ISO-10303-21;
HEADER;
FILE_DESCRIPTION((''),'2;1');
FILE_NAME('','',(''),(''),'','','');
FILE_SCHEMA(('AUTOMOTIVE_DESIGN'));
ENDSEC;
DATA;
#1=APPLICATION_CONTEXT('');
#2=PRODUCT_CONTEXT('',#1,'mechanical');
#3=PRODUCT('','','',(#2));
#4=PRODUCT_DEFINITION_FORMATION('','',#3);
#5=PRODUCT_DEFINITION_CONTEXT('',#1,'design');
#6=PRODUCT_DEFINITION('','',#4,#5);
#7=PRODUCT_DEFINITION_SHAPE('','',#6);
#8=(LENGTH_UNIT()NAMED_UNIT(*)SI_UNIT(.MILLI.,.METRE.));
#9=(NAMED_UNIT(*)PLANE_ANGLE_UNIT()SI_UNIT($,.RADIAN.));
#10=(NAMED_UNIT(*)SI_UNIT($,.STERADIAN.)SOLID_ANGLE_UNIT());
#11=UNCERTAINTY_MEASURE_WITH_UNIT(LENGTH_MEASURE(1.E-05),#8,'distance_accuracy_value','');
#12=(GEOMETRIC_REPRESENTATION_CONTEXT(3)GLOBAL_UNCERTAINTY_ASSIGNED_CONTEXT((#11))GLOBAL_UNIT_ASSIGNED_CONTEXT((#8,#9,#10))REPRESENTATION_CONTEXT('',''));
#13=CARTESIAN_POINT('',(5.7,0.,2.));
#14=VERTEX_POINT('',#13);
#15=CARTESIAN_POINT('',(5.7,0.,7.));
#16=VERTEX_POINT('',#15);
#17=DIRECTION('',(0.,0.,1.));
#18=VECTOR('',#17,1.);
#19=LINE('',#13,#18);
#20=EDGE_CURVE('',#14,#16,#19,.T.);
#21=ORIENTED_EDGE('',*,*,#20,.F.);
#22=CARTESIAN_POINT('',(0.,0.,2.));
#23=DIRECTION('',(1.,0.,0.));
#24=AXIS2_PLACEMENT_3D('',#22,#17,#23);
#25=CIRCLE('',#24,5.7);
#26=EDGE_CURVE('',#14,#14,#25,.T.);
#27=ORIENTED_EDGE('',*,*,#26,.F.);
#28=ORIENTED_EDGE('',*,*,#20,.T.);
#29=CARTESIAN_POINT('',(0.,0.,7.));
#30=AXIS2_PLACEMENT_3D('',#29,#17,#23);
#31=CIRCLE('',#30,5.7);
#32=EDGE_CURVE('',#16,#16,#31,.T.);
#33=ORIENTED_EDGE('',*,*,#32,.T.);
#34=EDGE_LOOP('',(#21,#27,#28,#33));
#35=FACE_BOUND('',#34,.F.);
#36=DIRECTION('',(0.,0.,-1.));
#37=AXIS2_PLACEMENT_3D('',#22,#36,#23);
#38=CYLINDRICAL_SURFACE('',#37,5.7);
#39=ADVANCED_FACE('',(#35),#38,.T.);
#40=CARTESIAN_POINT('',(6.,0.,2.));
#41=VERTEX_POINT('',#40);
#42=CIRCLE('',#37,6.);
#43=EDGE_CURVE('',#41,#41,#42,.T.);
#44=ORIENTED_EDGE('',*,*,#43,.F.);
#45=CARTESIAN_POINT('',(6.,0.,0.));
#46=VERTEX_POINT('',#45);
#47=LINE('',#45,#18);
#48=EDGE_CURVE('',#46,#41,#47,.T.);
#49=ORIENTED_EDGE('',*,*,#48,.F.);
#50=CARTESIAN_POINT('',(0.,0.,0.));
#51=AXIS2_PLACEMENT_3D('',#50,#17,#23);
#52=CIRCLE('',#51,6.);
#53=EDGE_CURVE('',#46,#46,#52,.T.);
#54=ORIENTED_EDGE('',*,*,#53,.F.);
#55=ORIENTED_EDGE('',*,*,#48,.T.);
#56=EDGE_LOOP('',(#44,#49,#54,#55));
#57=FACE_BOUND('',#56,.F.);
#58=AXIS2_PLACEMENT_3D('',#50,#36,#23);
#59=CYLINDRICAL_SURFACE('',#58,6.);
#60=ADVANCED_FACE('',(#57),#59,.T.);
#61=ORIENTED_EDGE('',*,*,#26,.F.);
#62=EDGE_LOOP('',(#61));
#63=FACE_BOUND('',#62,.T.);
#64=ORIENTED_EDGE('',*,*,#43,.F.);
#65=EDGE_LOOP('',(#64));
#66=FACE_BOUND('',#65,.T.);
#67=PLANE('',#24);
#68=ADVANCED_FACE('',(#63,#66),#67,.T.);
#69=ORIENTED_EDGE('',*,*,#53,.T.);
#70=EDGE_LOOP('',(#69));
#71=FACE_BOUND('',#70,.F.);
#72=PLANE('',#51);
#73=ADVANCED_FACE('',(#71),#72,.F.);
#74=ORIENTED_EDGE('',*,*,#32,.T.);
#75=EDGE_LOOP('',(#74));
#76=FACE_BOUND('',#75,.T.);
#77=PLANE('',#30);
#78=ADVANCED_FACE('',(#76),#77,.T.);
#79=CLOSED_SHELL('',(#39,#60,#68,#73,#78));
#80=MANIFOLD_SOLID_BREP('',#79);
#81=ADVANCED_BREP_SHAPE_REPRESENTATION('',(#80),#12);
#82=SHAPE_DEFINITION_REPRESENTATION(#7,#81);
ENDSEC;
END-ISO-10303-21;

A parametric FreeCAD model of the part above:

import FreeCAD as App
import Part
import Sketcher

V = App.Vector
Q = App.Units.Quantity

doc = App.newDocument("Part")
body = doc.addObject("PartDesign::Body", "Body")

# Sketch on XY plane
sketch1 = doc.addObject("Sketcher::SketchObject", "Sketch")
body.addObject(sketch1)
sketch1.AttachmentSupport = (doc.XY_Plane, [""])
sketch1.MapMode = "FlatFace"
sketch1.addGeometry(Part.Circle(V(0, 0, 0), V(0, 0, 1), 6), False)
sketch1.addConstraint([
    Sketcher.Constraint("Coincident", 0, 3, -1, 1),
    Sketcher.Constraint("Diameter", 0, Q("12 mm")),
])
pad1 = doc.addObject("PartDesign::Pad", "Pad")
body.addObject(pad1)
pad1.Profile = sketch1
pad1.Length = 2

# Sketch on XY plane
sketch2 = doc.addObject("Sketcher::SketchObject", "Sketch001")
body.addObject(sketch2)
sketch2.AttachmentSupport = (doc.XY_Plane, [""])
sketch2.MapMode = "FlatFace"
sketch2.AttachmentOffset = App.Placement(V(0, 0, 2), App.Rotation())
sketch2.addGeometry(Part.Circle(V(0, 0, 0), V(0, 0, 1), 6), False)
sketch2.addConstraint([
    Sketcher.Constraint("Coincident", 0, 3, -1, 1),
    Sketcher.Constraint("Diameter", 0, Q("11.4 mm")),
])
pad2 = doc.addObject("PartDesign::Pad", "Pad001")
body.addObject(pad2)
pad2.Profile = sketch2
pad2.Length = 5

doc.recompute()
